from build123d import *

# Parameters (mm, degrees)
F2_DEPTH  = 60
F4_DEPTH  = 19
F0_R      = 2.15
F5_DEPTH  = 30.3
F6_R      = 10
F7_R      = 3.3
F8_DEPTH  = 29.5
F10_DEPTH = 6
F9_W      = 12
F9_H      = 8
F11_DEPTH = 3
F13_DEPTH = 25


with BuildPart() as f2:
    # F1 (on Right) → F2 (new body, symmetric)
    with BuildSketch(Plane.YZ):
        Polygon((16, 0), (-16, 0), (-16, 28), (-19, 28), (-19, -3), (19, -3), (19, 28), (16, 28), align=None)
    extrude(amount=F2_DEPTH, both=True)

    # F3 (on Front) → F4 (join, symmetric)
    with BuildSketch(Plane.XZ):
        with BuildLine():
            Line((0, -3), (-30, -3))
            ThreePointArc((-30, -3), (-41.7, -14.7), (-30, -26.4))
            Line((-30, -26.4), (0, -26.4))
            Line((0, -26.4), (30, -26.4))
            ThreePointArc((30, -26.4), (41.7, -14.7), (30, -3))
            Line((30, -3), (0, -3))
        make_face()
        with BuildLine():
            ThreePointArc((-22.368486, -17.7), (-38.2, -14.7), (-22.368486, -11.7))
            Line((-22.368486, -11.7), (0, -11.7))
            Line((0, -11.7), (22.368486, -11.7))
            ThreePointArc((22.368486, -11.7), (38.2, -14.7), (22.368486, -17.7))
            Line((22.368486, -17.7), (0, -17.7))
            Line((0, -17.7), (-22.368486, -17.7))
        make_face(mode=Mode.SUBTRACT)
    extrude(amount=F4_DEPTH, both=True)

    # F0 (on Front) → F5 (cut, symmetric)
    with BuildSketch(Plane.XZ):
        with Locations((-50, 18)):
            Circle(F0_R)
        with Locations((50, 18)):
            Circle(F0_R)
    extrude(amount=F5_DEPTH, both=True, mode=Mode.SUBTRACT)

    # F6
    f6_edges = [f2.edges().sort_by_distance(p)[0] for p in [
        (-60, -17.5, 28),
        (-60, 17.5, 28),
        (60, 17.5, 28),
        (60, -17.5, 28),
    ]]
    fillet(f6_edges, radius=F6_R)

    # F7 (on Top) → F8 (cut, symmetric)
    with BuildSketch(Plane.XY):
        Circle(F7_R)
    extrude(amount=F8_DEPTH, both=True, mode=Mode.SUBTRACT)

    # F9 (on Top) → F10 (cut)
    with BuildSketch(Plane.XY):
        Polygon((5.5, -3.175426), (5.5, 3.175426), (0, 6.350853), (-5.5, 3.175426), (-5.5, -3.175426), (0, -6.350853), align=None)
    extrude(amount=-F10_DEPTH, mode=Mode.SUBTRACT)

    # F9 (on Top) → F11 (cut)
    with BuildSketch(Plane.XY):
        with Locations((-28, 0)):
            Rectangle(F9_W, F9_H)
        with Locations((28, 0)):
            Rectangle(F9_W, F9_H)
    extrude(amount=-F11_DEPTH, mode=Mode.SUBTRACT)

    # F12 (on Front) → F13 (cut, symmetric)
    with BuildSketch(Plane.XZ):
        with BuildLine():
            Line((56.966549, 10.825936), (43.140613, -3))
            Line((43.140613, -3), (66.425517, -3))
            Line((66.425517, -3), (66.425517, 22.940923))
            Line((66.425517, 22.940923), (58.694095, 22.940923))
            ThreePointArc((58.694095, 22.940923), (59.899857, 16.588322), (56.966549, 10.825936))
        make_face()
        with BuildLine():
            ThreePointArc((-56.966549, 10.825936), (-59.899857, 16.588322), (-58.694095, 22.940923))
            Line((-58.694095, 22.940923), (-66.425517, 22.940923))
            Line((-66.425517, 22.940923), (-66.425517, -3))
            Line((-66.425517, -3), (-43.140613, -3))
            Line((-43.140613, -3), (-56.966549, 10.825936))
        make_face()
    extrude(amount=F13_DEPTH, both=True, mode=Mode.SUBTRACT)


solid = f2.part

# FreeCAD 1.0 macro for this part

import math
import FreeCAD as App
import Part
import Sketcher
Q = App.Units.Quantity


def edges_at(feature, points):
    """Names of the edges that pass closest to the given points."""
    edges = feature.Shape.Edges
    near = lambda p: min(range(len(edges)), key=lambda i: edges[i].distToShape(Part.Vertex(*p))[0])
    return sorted({f"Edge{near(p) + 1}" for p in points})

doc = App.newDocument("Part")
body = doc.addObject("PartDesign::Body", "Body")

# Sketch on YZ plane
sketch1 = body.newObject("Sketcher::SketchObject", "Sketch")
sketch1.AttachmentSupport = (doc.getObject("YZ_Plane"), [""])
sketch1.MapMode = "FlatFace"
sketch1.addGeometry(Part.LineSegment(App.Vector(16, 0, 0), App.Vector(-16, 0, 0)), False)
sketch1.addGeometry(Part.LineSegment(App.Vector(-16, 0, 0), App.Vector(-16, 28, 0)), False)
sketch1.addGeometry(Part.LineSegment(App.Vector(-16, 28, 0), App.Vector(-19, 28, 0)), False)
sketch1.addGeometry(Part.LineSegment(App.Vector(-19, 28, 0), App.Vector(-19, -3, 0)), False)
sketch1.addGeometry(Part.LineSegment(App.Vector(-19, -3, 0), App.Vector(19, -3, 0)), False)
sketch1.addGeometry(Part.LineSegment(App.Vector(19, -3, 0), App.Vector(19, 28, 0)), False)
sketch1.addGeometry(Part.LineSegment(App.Vector(19, 28, 0), App.Vector(16, 28, 0)), False)
sketch1.addGeometry(Part.LineSegment(App.Vector(16, 28, 0), App.Vector(16, 0, 0)), False)
sketch1.addConstraint(Sketcher.Constraint("Coincident", 0, 2, 1, 1))
sketch1.addConstraint(Sketcher.Constraint("Coincident", 1, 2, 2, 1))
sketch1.addConstraint(Sketcher.Constraint("Coincident", 2, 2, 3, 1))
sketch1.addConstraint(Sketcher.Constraint("Coincident", 3, 2, 4, 1))
sketch1.addConstraint(Sketcher.Constraint("Coincident", 4, 2, 5, 1))
sketch1.addConstraint(Sketcher.Constraint("Coincident", 5, 2, 6, 1))
sketch1.addConstraint(Sketcher.Constraint("Coincident", 6, 2, 7, 1))
sketch1.addConstraint(Sketcher.Constraint("Coincident", 7, 2, 0, 1))
sketch1.addConstraint(Sketcher.Constraint("Horizontal", 0))
sketch1.addConstraint(Sketcher.Constraint("Vertical", 1))
sketch1.addConstraint(Sketcher.Constraint("Horizontal", 2))
sketch1.addConstraint(Sketcher.Constraint("Vertical", 3))
sketch1.addConstraint(Sketcher.Constraint("Horizontal", 4))
sketch1.addConstraint(Sketcher.Constraint("Vertical", 5))
sketch1.addConstraint(Sketcher.Constraint("Horizontal", 6))
sketch1.addConstraint(Sketcher.Constraint("Vertical", 7))
sketch1.addConstraint(Sketcher.Constraint("Symmetric", 0, 2, 7, 2, -1, 1))
sketch1.addConstraint(Sketcher.Constraint("Symmetric", 2, 2, 5, 2, -2))
sketch1.addConstraint(Sketcher.Constraint("DistanceX", 0, 2, 0, 1, 32.0))
sketch1.addConstraint(Sketcher.Constraint("DistanceX", 2, 2, 2, 1, 3.0))
sketch1.addConstraint(Sketcher.Constraint("DistanceY", 1, 1, 1, 2, 28.0))
sketch1.addConstraint(Sketcher.Constraint("DistanceY", 3, 2, 3, 1, 31.0))
pad1 = body.newObject("PartDesign::Pad", "Pad")
pad1.Profile = sketch1
pad1.Length = 120
pad1.Midplane = True

# Sketch on XZ plane
sketch2 = body.newObject("Sketcher::SketchObject", "Sketch001")
sketch2.AttachmentSupport = (doc.getObject("XZ_Plane"), [""])
sketch2.MapMode = "FlatFace"
sketch2.addGeometry(Part.ArcOfCircle(Part.Circle(App.Vector(-30, -14.7, 0), App.Vector(0, 0, 1), 11.7), math.radians(90), math.radians(270)), False)
sketch2.addGeometry(Part.LineSegment(App.Vector(-30, -26.4, 0), App.Vector(30, -26.4, 0)), False)
sketch2.addGeometry(Part.ArcOfCircle(Part.Circle(App.Vector(30, -14.7, 0), App.Vector(0, 0, 1), 11.7), math.radians(-90), math.radians(90)), False)
sketch2.addGeometry(Part.LineSegment(App.Vector(30, -3, 0), App.Vector(-30, -3, 0)), False)
sketch2.addGeometry(Part.LineSegment(App.Vector(22.368486, -17.7, 0), App.Vector(-22.368486, -17.7, 0)), False)
sketch2.addGeometry(Part.ArcOfCircle(Part.Circle(App.Vector(-30, -14.7, 0), App.Vector(0, 0, 1), 8.2), math.radians(21.460127), math.radians(338.539873)), False)
sketch2.addGeometry(Part.LineSegment(App.Vector(-22.368486, -11.7, 0), App.Vector(22.368486, -11.7, 0)), False)
sketch2.addGeometry(Part.ArcOfCircle(Part.Circle(App.Vector(30, -14.7, 0), App.Vector(0, 0, 1), 8.2), math.radians(-158.539873), math.radians(158.539873)), False)
sketch2.addConstraint(Sketcher.Constraint("Tangent", 0, 2, 1, 1))
sketch2.addConstraint(Sketcher.Constraint("Tangent", 1, 2, 2, 1))
sketch2.addConstraint(Sketcher.Constraint("Tangent", 2, 2, 3, 1))
sketch2.addConstraint(Sketcher.Constraint("Tangent", 3, 2, 0, 1))
sketch2.addConstraint(Sketcher.Constraint("Coincident", 4, 2, 5, 2))
sketch2.addConstraint(Sketcher.Constraint("Coincident", 5, 1, 6, 1))
sketch2.addConstraint(Sketcher.Constraint("Coincident", 6, 2, 7, 2))
sketch2.addConstraint(Sketcher.Constraint("Coincident", 7, 1, 4, 1))
sketch2.addConstraint(Sketcher.Constraint("Horizontal", 1))
sketch2.addConstraint(Sketcher.Constraint("Horizontal", 3))
sketch2.addConstraint(Sketcher.Constraint("Horizontal", 4))
sketch2.addConstraint(Sketcher.Constraint("Horizontal", 6))
sketch2.addConstraint(Sketcher.Constraint("Coincident", 5, 3, 0, 3))
sketch2.addConstraint(Sketcher.Constraint("Coincident", 7, 3, 2, 3))
sketch2.addConstraint(Sketcher.Constraint("Equal", 5, 7))
sketch2.addConstraint(Sketcher.Constraint("Vertical", 4, 2, 5, 1))
sketch2.addConstraint(Sketcher.Constraint("Radius", 0, 11.7))
sketch2.addConstraint(Sketcher.Constraint("Radius", 5, 8.2))
sketch2.addConstraint(Sketcher.Constraint("DistanceX", 1, 1, 1, 2, 60.0))
sketch2.addConstraint(Sketcher.Constraint("DistanceX", 0, 3, -1, 1, 30.0))
sketch2.addConstraint(Sketcher.Constraint("DistanceY", 2, 2, -1, 1, 3.0))
sketch2.addConstraint(Sketcher.Constraint("DistanceY", 4, 2, 5, 3, 3.0))
pad2 = body.newObject("PartDesign::Pad", "Pad001")
pad2.Profile = sketch2
pad2.Length = 38
pad2.Midplane = True

# Sketch on XZ plane
sketch3 = body.newObject("Sketcher::SketchObject", "Sketch002")
sketch3.AttachmentSupport = (doc.getObject("XZ_Plane"), [""])
sketch3.MapMode = "FlatFace"
sketch3.addGeometry(Part.Circle(App.Vector(-50, 18, 0), App.Vector(0, 0, 1), 2.15), False)
sketch3.addGeometry(Part.Circle(App.Vector(50, 18, 0), App.Vector(0, 0, 1), 2.15), False)
sketch3.addConstraint(Sketcher.Constraint("Equal", 0, 1))
sketch3.addConstraint(Sketcher.Constraint("Symmetric", 0, 3, 1, 3, -2))
sketch3.addConstraint(Sketcher.Constraint("Diameter", 0, 4.3))
sketch3.addConstraint(Sketcher.Constraint("DistanceX", 0, 3, -1, 1, 50.0))
sketch3.addConstraint(Sketcher.Constraint("DistanceY", -1, 1, 0, 3, 18.0))
pocket1 = body.newObject("PartDesign::Pocket", "Pocket")
pocket1.Profile = sketch3
pocket1.Length = 60.6
pocket1.Midplane = True
doc.recompute()

fillet = body.newObject("PartDesign::Fillet", "Fillet")
fillet.Base = (pocket1, edges_at(pocket1, [
    (-60, -17.5, 28),
    (-60, 17.5, 28),
    (60, 17.5, 28),
    (60, -17.5, 28),
]))
fillet.Radius = 10

# Sketch on XY plane
sketch4 = body.newObject("Sketcher::SketchObject", "Sketch003")
sketch4.AttachmentSupport = (doc.getObject("XY_Plane"), [""])
sketch4.MapMode = "FlatFace"
sketch4.addGeometry(Part.Circle(App.Vector(0, 0, 0), App.Vector(0, 0, 1), 3.3), False)
sketch4.addConstraint(Sketcher.Constraint("Coincident", 0, 3, -1, 1))
sketch4.addConstraint(Sketcher.Constraint("Diameter", 0, 6.6))
pocket2 = body.newObject("PartDesign::Pocket", "Pocket001")
pocket2.Profile = sketch4
pocket2.Length = 59
pocket2.Midplane = True

# Sketch on XY plane
sketch5 = body.newObject("Sketcher::SketchObject", "Sketch004")
sketch5.AttachmentSupport = (doc.getObject("XY_Plane"), [""])
sketch5.MapMode = "FlatFace"
sketch5.addGeometry(Part.LineSegment(App.Vector(5.5, -3.175426, 0), App.Vector(5.5, 3.175426, 0)), False)
sketch5.addGeometry(Part.LineSegment(App.Vector(5.5, 3.175426, 0), App.Vector(0, 6.350853, 0)), False)
sketch5.addGeometry(Part.LineSegment(App.Vector(0, 6.350853, 0), App.Vector(-5.5, 3.175426, 0)), False)
sketch5.addGeometry(Part.LineSegment(App.Vector(-5.5, 3.175426, 0), App.Vector(-5.5, -3.175426, 0)), False)
sketch5.addGeometry(Part.LineSegment(App.Vector(-5.5, -3.175426, 0), App.Vector(0, -6.350853, 0)), False)
sketch5.addGeometry(Part.LineSegment(App.Vector(0, -6.350853, 0), App.Vector(5.5, -3.175426, 0)), False)
sketch5.addConstraint(Sketcher.Constraint("Coincident", 0, 2, 1, 1))
sketch5.addConstraint(Sketcher.Constraint("Coincident", 1, 2, 2, 1))
sketch5.addConstraint(Sketcher.Constraint("Coincident", 2, 2, 3, 1))
sketch5.addConstraint(Sketcher.Constraint("Coincident", 3, 2, 4, 1))
sketch5.addConstraint(Sketcher.Constraint("Coincident", 4, 2, 5, 1))
sketch5.addConstraint(Sketcher.Constraint("Coincident", 5, 2, 0, 1))
sketch5.addConstraint(Sketcher.Constraint("Vertical", 0))
sketch5.addConstraint(Sketcher.Constraint("Vertical", 3))
sketch5.addConstraint(Sketcher.Constraint("Symmetric", 0, 2, 3, 2, -1, 1))
sketch5.addConstraint(Sketcher.Constraint("Symmetric", 1, 2, 4, 2, -1, 1))
sketch5.addConstraint(Sketcher.Constraint("PointOnObject", 1, 2, -2))
sketch5.addConstraint(Sketcher.Constraint("Parallel", 2, 5))
sketch5.addConstraint(Sketcher.Constraint("Horizontal", 0, 2, 2, 2))
sketch5.addConstraint(Sketcher.Constraint("Angle", 1, Q("149.999996 deg")))
sketch5.addConstraint(Sketcher.Constraint("DistanceX", 2, 2, 0, 2, 11.0))
sketch5.addConstraint(Sketcher.Constraint("DistanceY", 0, 1, 0, 2, 6.350852))
pocket3 = body.newObject("PartDesign::Pocket", "Pocket002")
pocket3.Profile = sketch5
pocket3.Length = 6

# Sketch on XY plane
sketch6 = body.newObject("Sketcher::SketchObject", "Sketch005")
sketch6.AttachmentSupport = (doc.getObject("XY_Plane"), [""])
sketch6.MapMode = "FlatFace"
sketch6.addGeometry(Part.LineSegment(App.Vector(-34, 4, 0), App.Vector(-34, -4, 0)), False)
sketch6.addGeometry(Part.LineSegment(App.Vector(-34, -4, 0), App.Vector(-22, -4, 0)), False)
sketch6.addGeometry(Part.LineSegment(App.Vector(-22, -4, 0), App.Vector(-22, 4, 0)), False)
sketch6.addGeometry(Part.LineSegment(App.Vector(-22, 4, 0), App.Vector(-34, 4, 0)), False)
sketch6.addGeometry(Part.LineSegment(App.Vector(22, 4, 0), App.Vector(22, -4, 0)), False)
sketch6.addGeometry(Part.LineSegment(App.Vector(22, -4, 0), App.Vector(34, -4, 0)), False)
sketch6.addGeometry(Part.LineSegment(App.Vector(34, -4, 0), App.Vector(34, 4, 0)), False)
sketch6.addGeometry(Part.LineSegment(App.Vector(34, 4, 0), App.Vector(22, 4, 0)), False)
sketch6.addConstraint(Sketcher.Constraint("Coincident", 0, 2, 1, 1))
sketch6.addConstraint(Sketcher.Constraint("Coincident", 1, 2, 2, 1))
sketch6.addConstraint(Sketcher.Constraint("Coincident", 2, 2, 3, 1))
sketch6.addConstraint(Sketcher.Constraint("Coincident", 3, 2, 0, 1))
sketch6.addConstraint(Sketcher.Constraint("Coincident", 4, 2, 5, 1))
sketch6.addConstraint(Sketcher.Constraint("Coincident", 5, 2, 6, 1))
sketch6.addConstraint(Sketcher.Constraint("Coincident", 6, 2, 7, 1))
sketch6.addConstraint(Sketcher.Constraint("Coincident", 7, 2, 4, 1))
sketch6.addConstraint(Sketcher.Constraint("Vertical", 0))
sketch6.addConstraint(Sketcher.Constraint("Horizontal", 1))
sketch6.addConstraint(Sketcher.Constraint("Vertical", 2))
sketch6.addConstraint(Sketcher.Constraint("Horizontal", 3))
sketch6.addConstraint(Sketcher.Constraint("Vertical", 4))
sketch6.addConstraint(Sketcher.Constraint("Horizontal", 5))
sketch6.addConstraint(Sketcher.Constraint("Vertical", 6))
sketch6.addConstraint(Sketcher.Constraint("Horizontal", 7))
sketch6.addConstraint(Sketcher.Constraint("Symmetric", 2, 2, 4, 2, -1, 1))
sketch6.addConstraint(Sketcher.Constraint("Symmetric", 0, 2, 6, 2, -1, 1))
sketch6.addConstraint(Sketcher.Constraint("Horizontal", 1, 2, 4, 2))
sketch6.addConstraint(Sketcher.Constraint("DistanceX", 1, 1, 1, 2, 12.0))
sketch6.addConstraint(Sketcher.Constraint("DistanceY", 0, 2, 0, 1, 8.0))
sketch6.addConstraint(Sketcher.Constraint("DistanceX", 0, 2, -1, 1, 34.0))
pocket4 = body.newObject("PartDesign::Pocket", "Pocket003")
pocket4.Profile = sketch6
pocket4.Length = 3

# Sketch on XZ plane
sketch7 = body.newObject("Sketcher::SketchObject", "Sketch006")
sketch7.AttachmentSupport = (doc.getObject("XZ_Plane"), [""])
sketch7.MapMode = "FlatFace"
sketch7.addGeometry(Part.LineSegment(App.Vector(56.966549, 10.825936, 0), App.Vector(43.140613, -3, 0)), False)
sketch7.addGeometry(Part.LineSegment(App.Vector(43.140613, -3, 0), App.Vector(66.425517, -3, 0)), False)
sketch7.addGeometry(Part.LineSegment(App.Vector(66.425517, -3, 0), App.Vector(66.425517, 22.940923, 0)), False)
sketch7.addGeometry(Part.LineSegment(App.Vector(66.425517, 22.940923, 0), App.Vector(58.694095, 22.940923, 0)), False)
sketch7.addGeometry(Part.ArcOfCircle(Part.Circle(App.Vector(50, 18, 0), App.Vector(0, 0, 1), 10), math.radians(-45.840763), math.radians(29.60991)), False)
sketch7.addGeometry(Part.ArcOfCircle(Part.Circle(App.Vector(-50, 18, 0), App.Vector(0, 0, 1), 10), math.radians(150.39009), math.radians(225.840763)), False)
sketch7.addGeometry(Part.LineSegment(App.Vector(-58.694095, 22.940923, 0), App.Vector(-66.425517, 22.940923, 0)), False)
sketch7.addGeometry(Part.LineSegment(App.Vector(-66.425517, 22.940923, 0), App.Vector(-66.425517, -3, 0)), False)
sketch7.addGeometry(Part.LineSegment(App.Vector(-66.425517, -3, 0), App.Vector(-43.140613, -3, 0)), False)
sketch7.addGeometry(Part.LineSegment(App.Vector(-43.140613, -3, 0), App.Vector(-56.966549, 10.825936, 0)), False)
sketch7.addConstraint(Sketcher.Constraint("Coincident", 0, 2, 1, 1))
sketch7.addConstraint(Sketcher.Constraint("Coincident", 1, 2, 2, 1))
sketch7.addConstraint(Sketcher.Constraint("Coincident", 2, 2, 3, 1))
sketch7.addConstraint(Sketcher.Constraint("Coincident", 3, 2, 4, 2))
sketch7.addConstraint(Sketcher.Constraint("Coincident", 4, 1, 0, 1))
sketch7.addConstraint(Sketcher.Constraint("Coincident", 5, 1, 6, 1))
sketch7.addConstraint(Sketcher.Constraint("Coincident", 6, 2, 7, 1))
sketch7.addConstraint(Sketcher.Constraint("Coincident", 7, 2, 8, 1))
sketch7.addConstraint(Sketcher.Constraint("Coincident", 8, 2, 9, 1))
sketch7.addConstraint(Sketcher.Constraint("Coincident", 9, 2, 5, 2))
sketch7.addConstraint(Sketcher.Constraint("Horizontal", 1))
sketch7.addConstraint(Sketcher.Constraint("Vertical", 2))
sketch7.addConstraint(Sketcher.Constraint("Horizontal", 3))
sketch7.addConstraint(Sketcher.Constraint("Horizontal", 6))
sketch7.addConstraint(Sketcher.Constraint("Vertical", 7))
sketch7.addConstraint(Sketcher.Constraint("Horizontal", 8))
sketch7.addConstraint(Sketcher.Constraint("Radius", 4, 10.0))
sketch7.addConstraint(Sketcher.Constraint("Radius", 5, 10.0))
sketch7.addConstraint(Sketcher.Constraint("DistanceX", -1, 1, 4, 3, 50.0))
sketch7.addConstraint(Sketcher.Constraint("DistanceY", -1, 1, 4, 3, 18.0))
sketch7.addConstraint(Sketcher.Constraint("DistanceX", 5, 3, -1, 1, 50.0))
sketch7.addConstraint(Sketcher.Constraint("DistanceY", -1, 1, 5, 3, 18.0))
sketch7.addConstraint(Sketcher.Constraint("DistanceY", 0, 2, -1, 1, 3.0))
sketch7.addConstraint(Sketcher.Constraint("DistanceY", 7, 2, -1, 1, 3.0))
sketch7.addConstraint(Sketcher.Constraint("DistanceX", 1, 1, 1, 2, 23.284904))
sketch7.addConstraint(Sketcher.Constraint("DistanceX", 3, 2, 3, 1, 7.731422))
sketch7.addConstraint(Sketcher.Constraint("DistanceX", 6, 2, 6, 1, 7.731422))
sketch7.addConstraint(Sketcher.Constraint("DistanceX", 8, 1, 8, 2, 23.284904))
sketch7.addConstraint(Sketcher.Constraint("DistanceY", 2, 1, 2, 2, 25.940923))
sketch7.addConstraint(Sketcher.Constraint("DistanceY", 7, 2, 7, 1, 25.940923))
sketch7.addConstraint(Sketcher.Constraint("DistanceX", -1, 1, 4, 1, 56.966549))
sketch7.addConstraint(Sketcher.Constraint("DistanceX", 9, 2, -1, 1, 56.966549))
pocket5 = body.newObject("PartDesign::Pocket", "Pocket004")
pocket5.Profile = sketch7
pocket5.Length = 50
pocket5.Midplane = True

doc.recompute()
